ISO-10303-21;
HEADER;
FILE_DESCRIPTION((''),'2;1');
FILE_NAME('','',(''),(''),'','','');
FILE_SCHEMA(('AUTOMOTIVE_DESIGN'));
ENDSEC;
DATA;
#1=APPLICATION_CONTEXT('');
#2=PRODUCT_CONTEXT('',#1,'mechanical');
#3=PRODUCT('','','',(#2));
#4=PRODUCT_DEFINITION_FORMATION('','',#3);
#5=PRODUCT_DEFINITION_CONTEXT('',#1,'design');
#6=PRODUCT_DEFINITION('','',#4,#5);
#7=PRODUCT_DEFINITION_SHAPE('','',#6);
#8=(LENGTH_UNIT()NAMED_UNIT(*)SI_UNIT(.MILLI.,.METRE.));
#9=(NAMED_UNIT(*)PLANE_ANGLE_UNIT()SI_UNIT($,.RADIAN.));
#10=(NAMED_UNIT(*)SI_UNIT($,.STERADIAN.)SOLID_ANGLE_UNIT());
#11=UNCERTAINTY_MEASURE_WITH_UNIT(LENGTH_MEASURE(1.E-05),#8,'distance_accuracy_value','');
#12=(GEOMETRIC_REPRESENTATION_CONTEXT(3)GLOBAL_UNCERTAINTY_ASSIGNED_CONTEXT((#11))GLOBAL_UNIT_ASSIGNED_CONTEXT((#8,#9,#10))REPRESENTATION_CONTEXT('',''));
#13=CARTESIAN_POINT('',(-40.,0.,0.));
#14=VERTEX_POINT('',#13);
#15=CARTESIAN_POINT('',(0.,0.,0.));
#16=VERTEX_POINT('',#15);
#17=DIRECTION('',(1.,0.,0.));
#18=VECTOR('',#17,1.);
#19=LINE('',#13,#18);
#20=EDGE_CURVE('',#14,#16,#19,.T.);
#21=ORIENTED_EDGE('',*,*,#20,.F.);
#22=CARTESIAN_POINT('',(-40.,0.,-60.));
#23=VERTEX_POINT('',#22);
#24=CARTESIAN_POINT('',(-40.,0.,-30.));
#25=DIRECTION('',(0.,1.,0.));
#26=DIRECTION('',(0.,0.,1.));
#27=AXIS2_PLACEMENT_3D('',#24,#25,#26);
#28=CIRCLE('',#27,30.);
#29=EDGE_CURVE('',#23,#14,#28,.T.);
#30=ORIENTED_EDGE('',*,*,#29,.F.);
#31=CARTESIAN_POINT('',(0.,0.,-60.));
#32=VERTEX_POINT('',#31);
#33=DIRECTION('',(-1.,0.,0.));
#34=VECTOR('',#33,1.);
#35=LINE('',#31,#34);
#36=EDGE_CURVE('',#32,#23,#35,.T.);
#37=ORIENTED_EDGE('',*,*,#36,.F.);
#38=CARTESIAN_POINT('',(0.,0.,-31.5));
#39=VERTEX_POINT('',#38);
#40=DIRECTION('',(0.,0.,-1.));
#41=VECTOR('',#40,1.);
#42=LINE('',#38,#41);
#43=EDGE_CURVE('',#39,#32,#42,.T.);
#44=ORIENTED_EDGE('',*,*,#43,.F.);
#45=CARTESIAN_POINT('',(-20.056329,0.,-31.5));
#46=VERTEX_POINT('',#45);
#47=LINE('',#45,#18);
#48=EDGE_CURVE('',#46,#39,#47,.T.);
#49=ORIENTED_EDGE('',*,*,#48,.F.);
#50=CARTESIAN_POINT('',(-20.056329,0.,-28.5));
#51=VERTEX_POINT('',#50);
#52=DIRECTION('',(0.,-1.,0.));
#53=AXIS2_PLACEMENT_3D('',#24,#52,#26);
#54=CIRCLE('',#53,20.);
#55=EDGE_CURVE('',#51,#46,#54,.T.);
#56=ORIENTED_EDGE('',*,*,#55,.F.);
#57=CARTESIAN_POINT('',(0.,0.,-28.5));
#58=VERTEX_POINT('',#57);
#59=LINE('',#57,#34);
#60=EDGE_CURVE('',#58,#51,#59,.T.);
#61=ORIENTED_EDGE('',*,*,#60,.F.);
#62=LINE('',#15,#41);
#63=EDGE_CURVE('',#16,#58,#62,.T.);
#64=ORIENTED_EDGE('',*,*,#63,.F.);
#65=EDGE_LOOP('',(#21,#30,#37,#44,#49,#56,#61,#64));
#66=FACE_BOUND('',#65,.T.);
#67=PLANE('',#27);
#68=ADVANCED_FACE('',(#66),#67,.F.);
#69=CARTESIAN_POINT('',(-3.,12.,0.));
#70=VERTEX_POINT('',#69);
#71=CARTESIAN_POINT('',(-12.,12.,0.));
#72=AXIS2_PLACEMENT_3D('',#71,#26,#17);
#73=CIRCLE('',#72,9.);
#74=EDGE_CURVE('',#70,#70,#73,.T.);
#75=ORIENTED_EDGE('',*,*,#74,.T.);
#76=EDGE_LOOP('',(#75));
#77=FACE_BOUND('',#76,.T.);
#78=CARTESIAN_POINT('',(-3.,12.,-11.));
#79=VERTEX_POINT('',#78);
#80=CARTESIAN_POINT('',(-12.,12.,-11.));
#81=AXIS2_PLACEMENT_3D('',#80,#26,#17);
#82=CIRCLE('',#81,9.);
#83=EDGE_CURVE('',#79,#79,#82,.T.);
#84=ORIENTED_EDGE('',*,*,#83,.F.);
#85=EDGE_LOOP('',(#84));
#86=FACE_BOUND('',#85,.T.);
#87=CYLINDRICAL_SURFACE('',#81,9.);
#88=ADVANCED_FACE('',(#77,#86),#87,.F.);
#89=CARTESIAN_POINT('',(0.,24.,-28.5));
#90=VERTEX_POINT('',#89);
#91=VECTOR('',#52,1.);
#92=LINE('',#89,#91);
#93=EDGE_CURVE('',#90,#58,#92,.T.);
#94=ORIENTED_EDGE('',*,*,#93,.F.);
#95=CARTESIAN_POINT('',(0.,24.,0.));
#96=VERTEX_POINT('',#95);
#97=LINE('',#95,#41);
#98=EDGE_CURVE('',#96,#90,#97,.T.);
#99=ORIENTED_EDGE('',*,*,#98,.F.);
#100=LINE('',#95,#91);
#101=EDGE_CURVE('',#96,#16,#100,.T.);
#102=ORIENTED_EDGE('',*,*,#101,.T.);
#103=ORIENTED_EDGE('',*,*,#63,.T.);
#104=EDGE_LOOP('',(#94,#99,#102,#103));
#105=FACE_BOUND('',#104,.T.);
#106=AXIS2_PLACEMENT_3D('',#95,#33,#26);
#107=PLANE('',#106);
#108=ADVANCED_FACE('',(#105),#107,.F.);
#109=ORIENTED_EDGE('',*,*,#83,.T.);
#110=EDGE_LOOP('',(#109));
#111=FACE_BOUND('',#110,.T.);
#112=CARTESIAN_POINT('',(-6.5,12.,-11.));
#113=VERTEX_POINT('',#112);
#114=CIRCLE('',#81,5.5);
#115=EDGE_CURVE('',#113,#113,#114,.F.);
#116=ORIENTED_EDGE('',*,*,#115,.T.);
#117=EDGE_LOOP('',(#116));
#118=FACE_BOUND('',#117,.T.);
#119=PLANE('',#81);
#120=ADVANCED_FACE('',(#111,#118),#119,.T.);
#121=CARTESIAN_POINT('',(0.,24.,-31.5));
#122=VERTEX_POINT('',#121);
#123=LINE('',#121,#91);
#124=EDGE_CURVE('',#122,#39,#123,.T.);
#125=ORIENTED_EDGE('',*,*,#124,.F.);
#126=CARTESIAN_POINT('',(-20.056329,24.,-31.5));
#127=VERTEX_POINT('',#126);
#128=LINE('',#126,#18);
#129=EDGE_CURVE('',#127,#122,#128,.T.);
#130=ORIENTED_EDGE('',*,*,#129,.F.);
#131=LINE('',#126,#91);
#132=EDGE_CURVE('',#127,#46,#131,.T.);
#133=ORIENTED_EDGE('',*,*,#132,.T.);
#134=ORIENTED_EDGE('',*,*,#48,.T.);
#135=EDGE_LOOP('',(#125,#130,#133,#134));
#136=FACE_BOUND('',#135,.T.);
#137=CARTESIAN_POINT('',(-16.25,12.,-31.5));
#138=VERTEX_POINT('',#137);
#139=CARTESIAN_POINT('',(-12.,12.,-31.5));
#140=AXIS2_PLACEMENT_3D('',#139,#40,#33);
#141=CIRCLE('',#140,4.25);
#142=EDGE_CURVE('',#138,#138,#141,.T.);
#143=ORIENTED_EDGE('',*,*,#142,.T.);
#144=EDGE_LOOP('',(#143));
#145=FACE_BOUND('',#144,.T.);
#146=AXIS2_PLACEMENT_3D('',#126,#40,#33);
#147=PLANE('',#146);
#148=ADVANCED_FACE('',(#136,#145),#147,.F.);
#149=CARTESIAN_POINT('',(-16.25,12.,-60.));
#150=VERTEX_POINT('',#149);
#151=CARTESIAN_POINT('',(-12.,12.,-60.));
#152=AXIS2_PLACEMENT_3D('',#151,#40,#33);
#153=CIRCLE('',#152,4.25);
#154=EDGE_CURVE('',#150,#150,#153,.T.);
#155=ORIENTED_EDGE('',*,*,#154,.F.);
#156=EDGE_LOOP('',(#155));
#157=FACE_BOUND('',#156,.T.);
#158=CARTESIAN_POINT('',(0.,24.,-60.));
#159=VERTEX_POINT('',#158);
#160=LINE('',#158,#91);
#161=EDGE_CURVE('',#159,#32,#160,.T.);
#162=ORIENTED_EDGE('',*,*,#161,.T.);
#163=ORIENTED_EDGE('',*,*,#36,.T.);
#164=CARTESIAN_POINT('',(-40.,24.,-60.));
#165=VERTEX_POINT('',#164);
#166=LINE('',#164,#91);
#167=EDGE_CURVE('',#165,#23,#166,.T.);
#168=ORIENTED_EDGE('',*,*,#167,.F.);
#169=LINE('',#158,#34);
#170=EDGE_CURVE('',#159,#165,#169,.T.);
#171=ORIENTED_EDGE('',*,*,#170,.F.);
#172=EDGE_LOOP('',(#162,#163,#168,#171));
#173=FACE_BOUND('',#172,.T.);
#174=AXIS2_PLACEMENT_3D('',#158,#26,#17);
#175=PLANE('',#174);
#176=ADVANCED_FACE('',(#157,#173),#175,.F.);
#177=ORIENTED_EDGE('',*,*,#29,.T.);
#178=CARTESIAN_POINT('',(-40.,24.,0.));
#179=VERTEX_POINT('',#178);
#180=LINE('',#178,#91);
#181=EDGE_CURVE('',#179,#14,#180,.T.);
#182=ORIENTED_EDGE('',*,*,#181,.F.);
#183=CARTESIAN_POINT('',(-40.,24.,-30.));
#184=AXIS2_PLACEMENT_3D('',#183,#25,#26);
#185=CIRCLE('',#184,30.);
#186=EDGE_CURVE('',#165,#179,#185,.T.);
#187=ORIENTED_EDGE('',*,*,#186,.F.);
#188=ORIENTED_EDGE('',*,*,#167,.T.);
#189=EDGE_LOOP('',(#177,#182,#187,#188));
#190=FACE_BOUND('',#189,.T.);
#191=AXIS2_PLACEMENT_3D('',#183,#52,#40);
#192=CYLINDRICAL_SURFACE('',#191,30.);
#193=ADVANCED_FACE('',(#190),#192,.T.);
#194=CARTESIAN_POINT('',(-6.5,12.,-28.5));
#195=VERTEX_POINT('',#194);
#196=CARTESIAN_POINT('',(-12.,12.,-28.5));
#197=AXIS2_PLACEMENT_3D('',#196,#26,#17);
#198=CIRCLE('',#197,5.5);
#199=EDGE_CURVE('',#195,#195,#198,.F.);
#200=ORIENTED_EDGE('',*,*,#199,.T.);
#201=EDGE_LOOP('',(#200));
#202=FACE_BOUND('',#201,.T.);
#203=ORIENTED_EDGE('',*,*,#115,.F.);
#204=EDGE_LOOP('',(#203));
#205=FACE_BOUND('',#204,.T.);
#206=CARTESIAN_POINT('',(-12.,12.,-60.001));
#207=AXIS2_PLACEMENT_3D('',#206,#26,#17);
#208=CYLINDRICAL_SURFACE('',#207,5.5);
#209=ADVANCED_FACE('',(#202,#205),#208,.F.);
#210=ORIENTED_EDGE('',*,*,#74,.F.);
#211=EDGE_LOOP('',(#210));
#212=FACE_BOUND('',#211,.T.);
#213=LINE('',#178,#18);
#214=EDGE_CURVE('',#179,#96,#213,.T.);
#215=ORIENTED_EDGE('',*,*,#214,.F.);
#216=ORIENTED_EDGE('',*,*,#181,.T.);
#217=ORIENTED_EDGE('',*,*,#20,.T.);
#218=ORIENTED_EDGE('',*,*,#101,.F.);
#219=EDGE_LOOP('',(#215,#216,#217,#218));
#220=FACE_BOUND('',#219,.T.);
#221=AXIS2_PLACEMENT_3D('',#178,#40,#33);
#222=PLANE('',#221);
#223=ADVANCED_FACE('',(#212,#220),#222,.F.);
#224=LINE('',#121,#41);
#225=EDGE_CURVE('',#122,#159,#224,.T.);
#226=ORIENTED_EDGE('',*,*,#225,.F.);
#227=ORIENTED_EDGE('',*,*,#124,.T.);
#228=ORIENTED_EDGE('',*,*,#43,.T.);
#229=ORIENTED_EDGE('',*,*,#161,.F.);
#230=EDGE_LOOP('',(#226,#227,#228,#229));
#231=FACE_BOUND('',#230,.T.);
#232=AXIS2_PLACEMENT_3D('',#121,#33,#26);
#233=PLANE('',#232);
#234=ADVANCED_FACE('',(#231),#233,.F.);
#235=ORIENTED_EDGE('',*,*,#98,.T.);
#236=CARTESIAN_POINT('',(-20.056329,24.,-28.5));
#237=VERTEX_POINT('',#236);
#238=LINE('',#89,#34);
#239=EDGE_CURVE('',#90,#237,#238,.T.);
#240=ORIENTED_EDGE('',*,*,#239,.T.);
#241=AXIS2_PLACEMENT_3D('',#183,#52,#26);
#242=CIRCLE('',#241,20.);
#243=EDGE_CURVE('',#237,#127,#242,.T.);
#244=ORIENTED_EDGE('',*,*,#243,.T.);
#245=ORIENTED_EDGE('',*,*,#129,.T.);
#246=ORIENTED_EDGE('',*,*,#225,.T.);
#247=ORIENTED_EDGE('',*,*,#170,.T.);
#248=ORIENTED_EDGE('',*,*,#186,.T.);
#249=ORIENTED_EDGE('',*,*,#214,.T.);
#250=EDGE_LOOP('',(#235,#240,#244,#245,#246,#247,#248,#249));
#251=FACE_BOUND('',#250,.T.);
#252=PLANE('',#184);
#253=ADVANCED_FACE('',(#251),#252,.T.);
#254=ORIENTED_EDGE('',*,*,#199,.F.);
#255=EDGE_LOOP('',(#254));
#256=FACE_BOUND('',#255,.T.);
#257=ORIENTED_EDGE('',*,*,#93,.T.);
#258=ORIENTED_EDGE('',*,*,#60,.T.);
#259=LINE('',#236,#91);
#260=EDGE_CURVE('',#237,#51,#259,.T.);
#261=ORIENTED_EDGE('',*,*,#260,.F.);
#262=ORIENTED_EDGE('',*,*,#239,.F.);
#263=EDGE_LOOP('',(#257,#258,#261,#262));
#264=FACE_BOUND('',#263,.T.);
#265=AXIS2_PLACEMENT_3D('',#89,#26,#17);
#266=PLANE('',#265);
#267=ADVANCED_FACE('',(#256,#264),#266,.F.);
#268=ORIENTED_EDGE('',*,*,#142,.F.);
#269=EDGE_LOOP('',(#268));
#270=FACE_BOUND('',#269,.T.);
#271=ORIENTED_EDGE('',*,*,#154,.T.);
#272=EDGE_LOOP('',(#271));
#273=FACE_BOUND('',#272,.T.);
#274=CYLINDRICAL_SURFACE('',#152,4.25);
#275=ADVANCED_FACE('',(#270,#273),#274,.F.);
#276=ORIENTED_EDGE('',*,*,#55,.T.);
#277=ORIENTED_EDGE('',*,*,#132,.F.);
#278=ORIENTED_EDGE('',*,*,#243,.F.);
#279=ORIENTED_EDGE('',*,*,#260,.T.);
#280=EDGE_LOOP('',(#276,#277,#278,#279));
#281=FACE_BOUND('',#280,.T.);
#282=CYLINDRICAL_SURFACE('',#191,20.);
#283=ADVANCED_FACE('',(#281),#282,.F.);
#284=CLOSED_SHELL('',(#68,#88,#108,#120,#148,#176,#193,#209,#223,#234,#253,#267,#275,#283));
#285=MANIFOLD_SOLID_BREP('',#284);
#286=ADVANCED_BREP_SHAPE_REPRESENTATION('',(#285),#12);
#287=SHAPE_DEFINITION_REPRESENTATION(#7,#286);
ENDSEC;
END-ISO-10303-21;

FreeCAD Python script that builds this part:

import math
import FreeCAD as App
import Part
import Sketcher

V = App.Vector

doc = App.newDocument("Part")
body = doc.addObject("PartDesign::Body", "Body")

sketch1 = doc.addObject("Sketcher::SketchObject", "Sketch")
body.addObject(sketch1)
sketch1.AttachmentSupport = (doc.XZ_Plane, [""])
sketch1.MapMode = "FlatFace"
sketch1.addGeometry([
    Part.LineSegment(V(0, 0, 0), V(0, -28.5, 0)),
    Part.LineSegment(V(0, -28.5, 0), V(-20.056329, -28.5, 0)),
    Part.ArcOfCircle(Part.Circle(V(-40, -30, 0), V(0, 0, 1), 20), math.radians(4.301222), math.radians(355.698778)),
    Part.LineSegment(V(-20.056329, -31.5, 0), V(0, -31.5, 0)),
    Part.LineSegment(V(0, -31.5, 0), V(0, -60, 0)),
    Part.LineSegment(V(0, -60, 0), V(-40, -60, 0)),
    Part.ArcOfCircle(Part.Circle(V(-40, -30, 0), V(0, 0, 1), 30), math.radians(90), math.radians(270)),
    Part.LineSegment(V(-40, 0, 0), V(0, 0, 0)),
], False)
sketch1.addConstraint([
    Sketcher.Constraint("Coincident", 0, 2, 1, 1),
    Sketcher.Constraint("Coincident", 1, 2, 2, 1),
    Sketcher.Constraint("Coincident", 2, 2, 3, 1),
    Sketcher.Constraint("Coincident", 3, 2, 4, 1),
    Sketcher.Constraint("Coincident", 4, 2, 5, 1),
    Sketcher.Constraint("Tangent", 5, 2, 6, 2),
    Sketcher.Constraint("Tangent", 6, 1, 7, 1),
    Sketcher.Constraint("Coincident", 7, 2, 0, 1),
    Sketcher.Constraint("Vertical", 0),
    Sketcher.Constraint("Horizontal", 1),
    Sketcher.Constraint("Horizontal", 3),
    Sketcher.Constraint("Vertical", 4),
    Sketcher.Constraint("Horizontal", 5),
    Sketcher.Constraint("Horizontal", 7),
    Sketcher.Constraint("Coincident", 7, 2, -1, 1),
    Sketcher.Constraint("Coincident", 6, 3, 2, 3),
    Sketcher.Constraint("PointOnObject", 3, 2, -2),
    Sketcher.Constraint("Vertical", 1, 2, 2, 2),
    Sketcher.Constraint("Radius", 2, 20.0),
    Sketcher.Constraint("Radius", 6, 30.0),
    Sketcher.Constraint("DistanceX", 5, 2, 5, 1, 40.0),
    Sketcher.Constraint("DistanceY", 0, 2, 0, 1, 28.5),
])
pad1 = doc.addObject("PartDesign::Pad", "Pad")
body.addObject(pad1)
pad1.Profile = sketch1
pad1.Length = 24
pad1.Reversed = True

sketch2 = doc.addObject("Sketcher::SketchObject", "Sketch001")
body.addObject(sketch2)
sketch2.AttachmentSupport = (doc.XY_Plane, [""])
sketch2.MapMode = "FlatFace"
sketch2.addGeometry(Part.Circle(V(-12, 12, 0), V(0, 0, 1), 5.5), False)
sketch2.addConstraint([
    Sketcher.Constraint("Diameter", 0, 11.0),
    Sketcher.Constraint("DistanceX", 0, 3, -1, 1, 12.0),
    Sketcher.Constraint("DistanceY", -1, 1, 0, 3, 12.0),
])
pocket1 = doc.addObject("PartDesign::Pocket", "Pocket")
body.addObject(pocket1)
pocket1.Profile = sketch2
pocket1.Type = "UpToFirst"

sketch3 = doc.addObject("Sketcher::SketchObject", "Sketch002")
body.addObject(sketch3)
sketch3.AttachmentSupport = (doc.XY_Plane, [""])
sketch3.MapMode = "FlatFace"
sketch3.addGeometry(Part.Circle(V(-12, 12, 0), V(0, 0, 1), 9), False)
sketch3.addConstraint([
    Sketcher.Constraint("Diameter", 0, 18.0),
    Sketcher.Constraint("DistanceX", 0, 3, -1, 1, 12.0),
    Sketcher.Constraint("DistanceY", -1, 1, 0, 3, 12.0),
])
pocket2 = doc.addObject("PartDesign::Pocket", "Pocket001")
body.addObject(pocket2)
pocket2.Profile = sketch3
pocket2.Length = 11

sketch4 = doc.addObject("Sketcher::SketchObject", "Sketch003")
body.addObject(sketch4)
sketch4.AttachmentSupport = (doc.XY_Plane, [""])
sketch4.MapMode = "FlatFace"
sketch4.AttachmentOffset = App.Placement(V(0, 0, -60), App.Rotation())
sketch4.addGeometry(Part.Circle(V(-12, 12, 0), V(0, 0, 1), 4.25), False)
sketch4.addConstraint([
    Sketcher.Constraint("Diameter", 0, 8.5),
    Sketcher.Constraint("DistanceX", 0, 3, -1, 1, 12.0),
    Sketcher.Constraint("DistanceY", -1, 1, 0, 3, 12.0),
])
doc.recompute()
hole = doc.addObject("PartDesign::Hole", "Hole")
body.addObject(hole)
hole.Profile = sketch4
hole.ThreadType = "None"
hole.Diameter = 8.5
hole.DepthType = "Dimension"
hole.Depth = 28.5
hole.DrillPoint = "Flat"
hole.Reversed = True

doc.recompute()
